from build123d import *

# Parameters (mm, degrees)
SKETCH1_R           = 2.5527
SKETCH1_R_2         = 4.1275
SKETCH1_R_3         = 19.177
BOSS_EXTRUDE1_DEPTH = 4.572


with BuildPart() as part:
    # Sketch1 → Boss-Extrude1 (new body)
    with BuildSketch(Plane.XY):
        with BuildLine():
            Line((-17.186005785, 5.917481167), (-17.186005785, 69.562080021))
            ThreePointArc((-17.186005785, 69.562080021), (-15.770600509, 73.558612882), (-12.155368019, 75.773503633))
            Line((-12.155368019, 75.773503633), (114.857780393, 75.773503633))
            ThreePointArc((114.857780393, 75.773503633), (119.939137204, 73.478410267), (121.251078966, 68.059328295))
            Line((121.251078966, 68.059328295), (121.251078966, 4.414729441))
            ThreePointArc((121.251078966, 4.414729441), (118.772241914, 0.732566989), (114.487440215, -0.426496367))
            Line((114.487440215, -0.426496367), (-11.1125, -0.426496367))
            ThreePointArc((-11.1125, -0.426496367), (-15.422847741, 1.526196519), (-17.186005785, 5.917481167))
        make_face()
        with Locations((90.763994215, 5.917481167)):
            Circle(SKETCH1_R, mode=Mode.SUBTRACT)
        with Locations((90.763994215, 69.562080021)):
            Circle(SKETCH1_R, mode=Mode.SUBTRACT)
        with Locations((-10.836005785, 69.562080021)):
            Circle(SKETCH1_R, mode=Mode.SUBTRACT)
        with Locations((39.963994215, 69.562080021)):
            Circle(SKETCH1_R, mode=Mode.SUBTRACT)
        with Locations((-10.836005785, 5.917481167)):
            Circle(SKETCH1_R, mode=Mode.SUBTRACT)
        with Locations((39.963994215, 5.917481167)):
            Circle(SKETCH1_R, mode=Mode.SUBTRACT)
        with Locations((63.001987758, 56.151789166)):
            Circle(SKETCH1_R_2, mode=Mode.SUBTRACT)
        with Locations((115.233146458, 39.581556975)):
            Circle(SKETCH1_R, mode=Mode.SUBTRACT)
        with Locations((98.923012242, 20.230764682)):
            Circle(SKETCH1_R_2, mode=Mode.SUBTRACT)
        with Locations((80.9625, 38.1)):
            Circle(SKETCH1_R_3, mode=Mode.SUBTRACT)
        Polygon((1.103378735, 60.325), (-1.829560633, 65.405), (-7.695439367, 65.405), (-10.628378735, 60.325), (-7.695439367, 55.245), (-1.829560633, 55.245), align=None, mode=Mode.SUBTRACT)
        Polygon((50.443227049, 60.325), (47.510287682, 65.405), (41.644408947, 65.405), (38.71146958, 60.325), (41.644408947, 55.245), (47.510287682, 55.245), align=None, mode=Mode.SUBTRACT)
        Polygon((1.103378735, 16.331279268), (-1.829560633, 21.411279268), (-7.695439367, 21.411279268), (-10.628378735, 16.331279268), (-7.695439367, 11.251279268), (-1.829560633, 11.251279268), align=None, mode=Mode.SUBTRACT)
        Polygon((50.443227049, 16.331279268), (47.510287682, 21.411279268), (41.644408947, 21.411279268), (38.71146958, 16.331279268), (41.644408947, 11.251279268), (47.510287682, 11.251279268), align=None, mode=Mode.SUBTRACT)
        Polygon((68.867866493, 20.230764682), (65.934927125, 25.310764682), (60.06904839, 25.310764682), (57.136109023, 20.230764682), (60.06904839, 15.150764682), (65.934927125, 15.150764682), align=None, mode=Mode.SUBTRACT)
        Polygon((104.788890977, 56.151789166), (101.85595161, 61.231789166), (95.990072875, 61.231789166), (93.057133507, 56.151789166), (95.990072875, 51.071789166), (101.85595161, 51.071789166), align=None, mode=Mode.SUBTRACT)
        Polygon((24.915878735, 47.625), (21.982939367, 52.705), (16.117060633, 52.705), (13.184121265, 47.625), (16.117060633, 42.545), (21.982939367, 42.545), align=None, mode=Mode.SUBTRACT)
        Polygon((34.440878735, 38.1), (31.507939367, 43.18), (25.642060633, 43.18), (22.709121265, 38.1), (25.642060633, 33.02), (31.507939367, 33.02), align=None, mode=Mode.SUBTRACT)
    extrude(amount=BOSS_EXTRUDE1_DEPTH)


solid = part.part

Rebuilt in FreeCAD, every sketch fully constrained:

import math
import FreeCAD as App
import Part
import Sketcher

V = App.Vector
Q = App.Units.Quantity


def add_polygon(sketch, points):
    """Adds a closed chain of lines whose ends are joined by coincident constraints."""
    first, n = sketch.GeometryCount, len(points)
    for a, b in zip(points, points[1:] + points[:1]):
        sketch.addGeometry(Part.LineSegment(App.Vector(*a, 0), App.Vector(*b, 0)), False)
    for i in range(n):
        sketch.addConstraint(Sketcher.Constraint("Coincident", first + i, 2, first + (i + 1) % n, 1))

doc = App.newDocument("Part")
body = doc.addObject("PartDesign::Body", "Body")

# Sketch on XY plane
sketch1 = body.newObject("Sketcher::SketchObject", "Sketch")
sketch1.AttachmentSupport = (doc.getObject("XY_Plane"), [""])
sketch1.MapMode = "FlatFace"
sketch1.addGeometry(Part.LineSegment(V(-17.2, 69.6, 0), V(-17.2, 5.9, 0)), False)  # 0
sketch1.addGeometry(Part.ArcOfCircle(Part.Circle(V(-10.8, 5.9, 0), V(0, 0, 1), 6.4), math.radians(-180), math.radians(-92)), False)  # 1
sketch1.addGeometry(Part.LineSegment(V(-11.1, -0.4, 0), V(114.5, -0.4, 0)), False)  # 2
sketch1.addGeometry(Part.ArcOfCircle(Part.Circle(V(115.1, 5.9, 0), V(0, 0, 1), 6.3), math.radians(-95), math.radians(-13)), False)  # 3
sketch1.addGeometry(Part.LineSegment(V(121.3, 4.4, 0), V(121.3, 68.1, 0)), False)  # 4
sketch1.addGeometry(Part.ArcOfCircle(Part.Circle(V(115, 69.4, 0), V(0, 0, 1), 6.3), math.radians(-12), math.radians(92)), False)  # 5
sketch1.addGeometry(Part.LineSegment(V(114.9, 75.8, 0), V(-12.2, 75.8, 0)), False)  # 6
sketch1.addGeometry(Part.ArcOfCircle(Part.Circle(V(-10.8, 69.6, 0), V(0, 0, 1), 6.3), math.radians(102), math.radians(180)), False)  # 7
sketch1.addGeometry(Part.Circle(V(90.8, 5.9, 0), V(0, 0, 1), 2.6), False)  # 8
sketch1.addGeometry(Part.Circle(V(98.9, 20.2, 0), V(0, 0, 1), 4.1), False)  # 9
add_polygon(sketch1, [(68.9, 20.2), (65.9, 15.2), (60.1, 15.2), (57.1, 20.2), (60.1, 25.3), (65.9, 25.3)])  # lines 10-15
sketch1.addGeometry(Part.Circle(V(40, 5.9, 0), V(0, 0, 1), 2.6), False)  # 16
add_polygon(sketch1, [(50.4, 16.3), (47.5, 11.3), (41.6, 11.3), (38.7, 16.3), (41.6, 21.4), (47.5, 21.4)])  # lines 17-22
sketch1.addGeometry(Part.Circle(V(-10.8, 5.9, 0), V(0, 0, 1), 2.6), False)  # 23
add_polygon(sketch1, [(1.1, 16.3), (-1.8, 11.3), (-7.7, 11.3), (-10.6, 16.3), (-7.7, 21.4), (-1.8, 21.4)])  # lines 24-29
sketch1.addGeometry(Part.Circle(V(115.2, 39.6, 0), V(0, 0, 1), 2.6), False)  # 30
sketch1.addGeometry(Part.Circle(V(81, 38.1, 0), V(0, 0, 1), 19.2), False)  # 31
add_polygon(sketch1, [(104.8, 56.2), (101.9, 51.1), (96, 51.1), (93.1, 56.2), (96, 61.2), (101.9, 61.2)])  # lines 32-37
sketch1.addGeometry(Part.Circle(V(90.8, 69.6, 0), V(0, 0, 1), 2.6), False)  # 38
sketch1.addGeometry(Part.Circle(V(63, 56.2, 0), V(0, 0, 1), 4.1), False)  # 39
add_polygon(sketch1, [(34.4, 38.1), (31.5, 33), (25.6, 33), (22.7, 38.1), (25.6, 43.2), (31.5, 43.2)])  # lines 40-45
add_polygon(sketch1, [(24.9, 47.6), (22, 42.5), (16.1, 42.5), (13.2, 47.6), (16.1, 52.7), (22, 52.7)])  # lines 46-51
add_polygon(sketch1, [(50.4, 60.3), (47.5, 55.2), (41.6, 55.2), (38.7, 60.3), (41.6, 65.4), (47.5, 65.4)])  # lines 52-57
sketch1.addGeometry(Part.Circle(V(40, 69.6, 0), V(0, 0, 1), 2.6), False)  # 58
add_polygon(sketch1, [(1.1, 60.3), (-1.8, 55.2), (-7.7, 55.2), (-10.6, 60.3), (-7.7, 65.4), (-1.8, 65.4)])  # lines 59-64
sketch1.addGeometry(Part.Circle(V(-10.8, 69.6, 0), V(0, 0, 1), 2.6), False)  # 65
sketch1.addConstraint([
    Sketcher.Constraint("Tangent", 0, 2, 1, 1),
    Sketcher.Constraint("Coincident", 1, 2, 2, 1),
    Sketcher.Constraint("Coincident", 2, 2, 3, 1),
    Sketcher.Constraint("Coincident", 3, 2, 4, 1),
    Sketcher.Constraint("Coincident", 4, 2, 5, 1),
    Sketcher.Constraint("Coincident", 5, 2, 6, 1),
    Sketcher.Constraint("Coincident", 6, 2, 7, 1),
    Sketcher.Constraint("Tangent", 7, 2, 0, 1),
    Sketcher.Constraint("Vertical", 0),
    Sketcher.Constraint("Horizontal", 2),
    Sketcher.Constraint("Vertical", 4),
    Sketcher.Constraint("Horizontal", 6),
    Sketcher.Constraint("Horizontal", 11),
    Sketcher.Constraint("Horizontal", 14),
    Sketcher.Constraint("Horizontal", 18),
    Sketcher.Constraint("Horizontal", 21),
    Sketcher.Constraint("Horizontal", 25),
    Sketcher.Constraint("Horizontal", 28),
    Sketcher.Constraint("Horizontal", 33),
    Sketcher.Constraint("Horizontal", 36),
    Sketcher.Constraint("Horizontal", 41),
    Sketcher.Constraint("Horizontal", 44),
    Sketcher.Constraint("Horizontal", 47),
    Sketcher.Constraint("Horizontal", 50),
    Sketcher.Constraint("Horizontal", 53),
    Sketcher.Constraint("Horizontal", 56),
    Sketcher.Constraint("Horizontal", 60),
    Sketcher.Constraint("Horizontal", 63),
    Sketcher.Constraint("Coincident", 23, 3, 1, 3),
    Sketcher.Constraint("Coincident", 65, 3, 7, 3),
    Sketcher.Constraint("Equal", 1, 3),
    Sketcher.Constraint("Equal", 3, 5),
    Sketcher.Constraint("Equal", 5, 7),
    Sketcher.Constraint("Equal", 8, 16),
    Sketcher.Constraint("Equal", 16, 23),
    Sketcher.Constraint("Equal", 23, 30),
    Sketcher.Constraint("Equal", 30, 38),
    Sketcher.Constraint("Equal", 9, 39),
    Sketcher.Constraint("Equal", 38, 58),
    Sketcher.Constraint("Equal", 58, 65),
    Sketcher.Constraint("Parallel", 10, 13),
    Sketcher.Constraint("Parallel", 12, 15),
    Sketcher.Constraint("Parallel", 13, 17),
    Sketcher.Constraint("Parallel", 15, 19),
    Sketcher.Constraint("Parallel", 17, 20),
    Sketcher.Constraint("Parallel", 19, 22),
    Sketcher.Constraint("Parallel", 20, 24),
    Sketcher.Constraint("Parallel", 22, 26),
    Sketcher.Constraint("Parallel", 24, 27),
    Sketcher.Constraint("Parallel", 26, 29),
    Sketcher.Constraint("Parallel", 27, 32),
    Sketcher.Constraint("Parallel", 29, 34),
    Sketcher.Constraint("Parallel", 32, 35),
    Sketcher.Constraint("Parallel", 34, 37),
    Sketcher.Constraint("Parallel", 35, 40),
    Sketcher.Constraint("Parallel", 37, 42),
    Sketcher.Constraint("Parallel", 40, 43),
    Sketcher.Constraint("Parallel", 42, 45),
    Sketcher.Constraint("Parallel", 43, 46),
    Sketcher.Constraint("Parallel", 45, 48),
    Sketcher.Constraint("Parallel", 46, 49),
    Sketcher.Constraint("Parallel", 48, 51),
    Sketcher.Constraint("Parallel", 49, 52),
    Sketcher.Constraint("Parallel", 51, 54),
    Sketcher.Constraint("Parallel", 52, 55),
    Sketcher.Constraint("Parallel", 54, 57),
    Sketcher.Constraint("Parallel", 55, 59),
    Sketcher.Constraint("Parallel", 57, 61),
    Sketcher.Constraint("Parallel", 59, 62),
    Sketcher.Constraint("Parallel", 61, 64),
    Sketcher.Constraint("Horizontal", 1, 3, 8, 3),
    Sketcher.Constraint("Horizontal", 8, 3, 16, 3),
    Sketcher.Constraint("Horizontal", 7, 3, 38, 3),
    Sketcher.Constraint("Horizontal", 38, 3, 58, 3),
    Sketcher.Constraint("Horizontal", 9, 3, 12, 2),
    Sketcher.Constraint("Horizontal", 12, 2, 15, 2),
    Sketcher.Constraint("Horizontal", 19, 2, 22, 2),
    Sketcher.Constraint("Horizontal", 18, 2, 24, 2),
    Sketcher.Constraint("Horizontal", 22, 2, 26, 2),
    Sketcher.Constraint("Horizontal", 21, 2, 27, 2),
    Sketcher.Constraint("Horizontal", 26, 2, 29, 2),
    Sketcher.Constraint("Horizontal", 39, 3, 34, 2),
    Sketcher.Constraint("Horizontal", 34, 2, 37, 2),
    Sketcher.Constraint("Horizontal", 31, 3, 42, 2),
    Sketcher.Constraint("Horizontal", 42, 2, 45, 2),
    Sketcher.Constraint("Horizontal", 48, 2, 51, 2),
    Sketcher.Constraint("Horizontal", 54, 2, 57, 2),
    Sketcher.Constraint("Horizontal", 53, 2, 59, 2),
    Sketcher.Constraint("Horizontal", 57, 2, 61, 2),
    Sketcher.Constraint("Horizontal", 56, 2, 62, 2),
    Sketcher.Constraint("Horizontal", 61, 2, 64, 2),
    Sketcher.Constraint("Vertical", 8, 3, 38, 3),
    Sketcher.Constraint("Vertical", 16, 3, 58, 3),
    Sketcher.Constraint("Vertical", 11, 2, 13, 2),
    Sketcher.Constraint("Vertical", 10, 2, 14, 2),
    Sketcher.Constraint("Vertical", 18, 2, 20, 2),
    Sketcher.Constraint("Vertical", 33, 2, 35, 2),
    Sketcher.Constraint("Vertical", 41, 2, 43, 2),
    Sketcher.Constraint("Vertical", 47, 2, 49, 2),
    Sketcher.Constraint("Vertical", 21, 2, 52, 2),
    Sketcher.Constraint("Vertical", 20, 2, 53, 2),
    Sketcher.Constraint("Vertical", 19, 2, 54, 2),
    Sketcher.Constraint("Vertical", 53, 2, 55, 2),
    Sketcher.Constraint("Vertical", 28, 2, 59, 2),
    Sketcher.Constraint("Vertical", 27, 2, 60, 2),
    Sketcher.Constraint("Equal", 14, 18),
    Sketcher.Constraint("Equal", 21, 25),
    Sketcher.Constraint("Equal", 28, 33),
    Sketcher.Constraint("Equal", 36, 41),
    Sketcher.Constraint("Equal", 44, 47),
    Sketcher.Constraint("Equal", 0, 4),
    Sketcher.Constraint("Equal", 15, 17),
    Sketcher.Constraint("Equal", 29, 32),
    Sketcher.Constraint("Equal", 37, 40),
    Sketcher.Constraint("Equal", 45, 46),
    Sketcher.Constraint("Diameter", 31, Q("1.51 in")),
    Sketcher.Constraint("Radius", 1, Q("0.25 in")),
    Sketcher.Constraint("Diameter", 8, Q("0.201 in")),
    Sketcher.Constraint("Diameter", 9, Q("0.325 in")),
    Sketcher.Constraint("Angle", 10, Q("-120 deg")),
    Sketcher.Constraint("DistanceY", -1, 1, 31, 3, Q("1.5 in")),
    Sketcher.Constraint("DistanceY", -1, 1, 40, 2, Q("1.3 in")),
    Sketcher.Constraint("DistanceX", -1, 1, 31, 3, Q("3.1875 in")),
    Sketcher.Constraint("DistanceX", 1, 2, -1, 1, Q("0.4375 in")),
    Sketcher.Constraint("DistanceY", -1, 1, 46, 2, Q("1.675 in")),
    Sketcher.Constraint("DistanceY", -1, 1, 52, 2, Q("2.175 in")),
    Sketcher.Constraint("DistanceY", 0, 2, 0, 1, 63.644599),
    Sketcher.Constraint("DistanceX", 2, 1, 2, 2, 125.59994),
    Sketcher.Constraint("DistanceX", 6, 2, 6, 1, 127.013148),
    Sketcher.Constraint("DistanceX", 11, 2, 11, 1, 5.865879),
    Sketcher.Constraint("DistanceX", -1, 1, 3, 3, 115.076298),
    Sketcher.Constraint("DistanceY", -1, 1, 1, 3, 5.917481),
    Sketcher.Constraint("DistanceY", -1, 1, 3, 3, 5.896141),
    Sketcher.Constraint("DistanceY", -1, 1, 39, 3, 56.151789),
    Sketcher.Constraint("DistanceX", -1, 1, 3, 2, 121.251079),
    Sketcher.Constraint("DistanceX", -1, 1, 5, 2, 114.85778),
    Sketcher.Constraint("DistanceX", -1, 1, 11, 2, 60.069048),
    Sketcher.Constraint("DistanceY", -1, 1, 17, 2, 11.251279),
    Sketcher.Constraint("DistanceX", -1, 1, 18, 2, 41.644409),
    Sketcher.Constraint("DistanceX", 24, 2, -1, 1, 1.829561),
    Sketcher.Constraint("DistanceX", -1, 1, 32, 2, 101.855952),
    Sketcher.Constraint("DistanceX", -1, 1, 40, 2, 31.507939),
    Sketcher.Constraint("DistanceX", -1, 1, 46, 2, 21.982939),
    Sketcher.Constraint("DistanceX", -1, 1, 8, 3, 90.763994),
    Sketcher.Constraint("DistanceX", -1, 1, 9, 3, 98.923012),
    Sketcher.Constraint("DistanceY", -1, 1, 9, 3, 20.230765),
    Sketcher.Constraint("DistanceX", -1, 1, 16, 3, 39.963994),
    Sketcher.Constraint("DistanceX", -1, 1, 30, 3, 115.233146),
    Sketcher.Constraint("DistanceY", -1, 1, 30, 3, 39.581557),
    Sketcher.Constraint("DistanceX", -1, 1, 39, 3, 63.001988),
])
pad1 = body.newObject("PartDesign::Pad", "Pad")
pad1.Profile = sketch1
pad1.Length = Q("0.18 in")

doc.recompute()
